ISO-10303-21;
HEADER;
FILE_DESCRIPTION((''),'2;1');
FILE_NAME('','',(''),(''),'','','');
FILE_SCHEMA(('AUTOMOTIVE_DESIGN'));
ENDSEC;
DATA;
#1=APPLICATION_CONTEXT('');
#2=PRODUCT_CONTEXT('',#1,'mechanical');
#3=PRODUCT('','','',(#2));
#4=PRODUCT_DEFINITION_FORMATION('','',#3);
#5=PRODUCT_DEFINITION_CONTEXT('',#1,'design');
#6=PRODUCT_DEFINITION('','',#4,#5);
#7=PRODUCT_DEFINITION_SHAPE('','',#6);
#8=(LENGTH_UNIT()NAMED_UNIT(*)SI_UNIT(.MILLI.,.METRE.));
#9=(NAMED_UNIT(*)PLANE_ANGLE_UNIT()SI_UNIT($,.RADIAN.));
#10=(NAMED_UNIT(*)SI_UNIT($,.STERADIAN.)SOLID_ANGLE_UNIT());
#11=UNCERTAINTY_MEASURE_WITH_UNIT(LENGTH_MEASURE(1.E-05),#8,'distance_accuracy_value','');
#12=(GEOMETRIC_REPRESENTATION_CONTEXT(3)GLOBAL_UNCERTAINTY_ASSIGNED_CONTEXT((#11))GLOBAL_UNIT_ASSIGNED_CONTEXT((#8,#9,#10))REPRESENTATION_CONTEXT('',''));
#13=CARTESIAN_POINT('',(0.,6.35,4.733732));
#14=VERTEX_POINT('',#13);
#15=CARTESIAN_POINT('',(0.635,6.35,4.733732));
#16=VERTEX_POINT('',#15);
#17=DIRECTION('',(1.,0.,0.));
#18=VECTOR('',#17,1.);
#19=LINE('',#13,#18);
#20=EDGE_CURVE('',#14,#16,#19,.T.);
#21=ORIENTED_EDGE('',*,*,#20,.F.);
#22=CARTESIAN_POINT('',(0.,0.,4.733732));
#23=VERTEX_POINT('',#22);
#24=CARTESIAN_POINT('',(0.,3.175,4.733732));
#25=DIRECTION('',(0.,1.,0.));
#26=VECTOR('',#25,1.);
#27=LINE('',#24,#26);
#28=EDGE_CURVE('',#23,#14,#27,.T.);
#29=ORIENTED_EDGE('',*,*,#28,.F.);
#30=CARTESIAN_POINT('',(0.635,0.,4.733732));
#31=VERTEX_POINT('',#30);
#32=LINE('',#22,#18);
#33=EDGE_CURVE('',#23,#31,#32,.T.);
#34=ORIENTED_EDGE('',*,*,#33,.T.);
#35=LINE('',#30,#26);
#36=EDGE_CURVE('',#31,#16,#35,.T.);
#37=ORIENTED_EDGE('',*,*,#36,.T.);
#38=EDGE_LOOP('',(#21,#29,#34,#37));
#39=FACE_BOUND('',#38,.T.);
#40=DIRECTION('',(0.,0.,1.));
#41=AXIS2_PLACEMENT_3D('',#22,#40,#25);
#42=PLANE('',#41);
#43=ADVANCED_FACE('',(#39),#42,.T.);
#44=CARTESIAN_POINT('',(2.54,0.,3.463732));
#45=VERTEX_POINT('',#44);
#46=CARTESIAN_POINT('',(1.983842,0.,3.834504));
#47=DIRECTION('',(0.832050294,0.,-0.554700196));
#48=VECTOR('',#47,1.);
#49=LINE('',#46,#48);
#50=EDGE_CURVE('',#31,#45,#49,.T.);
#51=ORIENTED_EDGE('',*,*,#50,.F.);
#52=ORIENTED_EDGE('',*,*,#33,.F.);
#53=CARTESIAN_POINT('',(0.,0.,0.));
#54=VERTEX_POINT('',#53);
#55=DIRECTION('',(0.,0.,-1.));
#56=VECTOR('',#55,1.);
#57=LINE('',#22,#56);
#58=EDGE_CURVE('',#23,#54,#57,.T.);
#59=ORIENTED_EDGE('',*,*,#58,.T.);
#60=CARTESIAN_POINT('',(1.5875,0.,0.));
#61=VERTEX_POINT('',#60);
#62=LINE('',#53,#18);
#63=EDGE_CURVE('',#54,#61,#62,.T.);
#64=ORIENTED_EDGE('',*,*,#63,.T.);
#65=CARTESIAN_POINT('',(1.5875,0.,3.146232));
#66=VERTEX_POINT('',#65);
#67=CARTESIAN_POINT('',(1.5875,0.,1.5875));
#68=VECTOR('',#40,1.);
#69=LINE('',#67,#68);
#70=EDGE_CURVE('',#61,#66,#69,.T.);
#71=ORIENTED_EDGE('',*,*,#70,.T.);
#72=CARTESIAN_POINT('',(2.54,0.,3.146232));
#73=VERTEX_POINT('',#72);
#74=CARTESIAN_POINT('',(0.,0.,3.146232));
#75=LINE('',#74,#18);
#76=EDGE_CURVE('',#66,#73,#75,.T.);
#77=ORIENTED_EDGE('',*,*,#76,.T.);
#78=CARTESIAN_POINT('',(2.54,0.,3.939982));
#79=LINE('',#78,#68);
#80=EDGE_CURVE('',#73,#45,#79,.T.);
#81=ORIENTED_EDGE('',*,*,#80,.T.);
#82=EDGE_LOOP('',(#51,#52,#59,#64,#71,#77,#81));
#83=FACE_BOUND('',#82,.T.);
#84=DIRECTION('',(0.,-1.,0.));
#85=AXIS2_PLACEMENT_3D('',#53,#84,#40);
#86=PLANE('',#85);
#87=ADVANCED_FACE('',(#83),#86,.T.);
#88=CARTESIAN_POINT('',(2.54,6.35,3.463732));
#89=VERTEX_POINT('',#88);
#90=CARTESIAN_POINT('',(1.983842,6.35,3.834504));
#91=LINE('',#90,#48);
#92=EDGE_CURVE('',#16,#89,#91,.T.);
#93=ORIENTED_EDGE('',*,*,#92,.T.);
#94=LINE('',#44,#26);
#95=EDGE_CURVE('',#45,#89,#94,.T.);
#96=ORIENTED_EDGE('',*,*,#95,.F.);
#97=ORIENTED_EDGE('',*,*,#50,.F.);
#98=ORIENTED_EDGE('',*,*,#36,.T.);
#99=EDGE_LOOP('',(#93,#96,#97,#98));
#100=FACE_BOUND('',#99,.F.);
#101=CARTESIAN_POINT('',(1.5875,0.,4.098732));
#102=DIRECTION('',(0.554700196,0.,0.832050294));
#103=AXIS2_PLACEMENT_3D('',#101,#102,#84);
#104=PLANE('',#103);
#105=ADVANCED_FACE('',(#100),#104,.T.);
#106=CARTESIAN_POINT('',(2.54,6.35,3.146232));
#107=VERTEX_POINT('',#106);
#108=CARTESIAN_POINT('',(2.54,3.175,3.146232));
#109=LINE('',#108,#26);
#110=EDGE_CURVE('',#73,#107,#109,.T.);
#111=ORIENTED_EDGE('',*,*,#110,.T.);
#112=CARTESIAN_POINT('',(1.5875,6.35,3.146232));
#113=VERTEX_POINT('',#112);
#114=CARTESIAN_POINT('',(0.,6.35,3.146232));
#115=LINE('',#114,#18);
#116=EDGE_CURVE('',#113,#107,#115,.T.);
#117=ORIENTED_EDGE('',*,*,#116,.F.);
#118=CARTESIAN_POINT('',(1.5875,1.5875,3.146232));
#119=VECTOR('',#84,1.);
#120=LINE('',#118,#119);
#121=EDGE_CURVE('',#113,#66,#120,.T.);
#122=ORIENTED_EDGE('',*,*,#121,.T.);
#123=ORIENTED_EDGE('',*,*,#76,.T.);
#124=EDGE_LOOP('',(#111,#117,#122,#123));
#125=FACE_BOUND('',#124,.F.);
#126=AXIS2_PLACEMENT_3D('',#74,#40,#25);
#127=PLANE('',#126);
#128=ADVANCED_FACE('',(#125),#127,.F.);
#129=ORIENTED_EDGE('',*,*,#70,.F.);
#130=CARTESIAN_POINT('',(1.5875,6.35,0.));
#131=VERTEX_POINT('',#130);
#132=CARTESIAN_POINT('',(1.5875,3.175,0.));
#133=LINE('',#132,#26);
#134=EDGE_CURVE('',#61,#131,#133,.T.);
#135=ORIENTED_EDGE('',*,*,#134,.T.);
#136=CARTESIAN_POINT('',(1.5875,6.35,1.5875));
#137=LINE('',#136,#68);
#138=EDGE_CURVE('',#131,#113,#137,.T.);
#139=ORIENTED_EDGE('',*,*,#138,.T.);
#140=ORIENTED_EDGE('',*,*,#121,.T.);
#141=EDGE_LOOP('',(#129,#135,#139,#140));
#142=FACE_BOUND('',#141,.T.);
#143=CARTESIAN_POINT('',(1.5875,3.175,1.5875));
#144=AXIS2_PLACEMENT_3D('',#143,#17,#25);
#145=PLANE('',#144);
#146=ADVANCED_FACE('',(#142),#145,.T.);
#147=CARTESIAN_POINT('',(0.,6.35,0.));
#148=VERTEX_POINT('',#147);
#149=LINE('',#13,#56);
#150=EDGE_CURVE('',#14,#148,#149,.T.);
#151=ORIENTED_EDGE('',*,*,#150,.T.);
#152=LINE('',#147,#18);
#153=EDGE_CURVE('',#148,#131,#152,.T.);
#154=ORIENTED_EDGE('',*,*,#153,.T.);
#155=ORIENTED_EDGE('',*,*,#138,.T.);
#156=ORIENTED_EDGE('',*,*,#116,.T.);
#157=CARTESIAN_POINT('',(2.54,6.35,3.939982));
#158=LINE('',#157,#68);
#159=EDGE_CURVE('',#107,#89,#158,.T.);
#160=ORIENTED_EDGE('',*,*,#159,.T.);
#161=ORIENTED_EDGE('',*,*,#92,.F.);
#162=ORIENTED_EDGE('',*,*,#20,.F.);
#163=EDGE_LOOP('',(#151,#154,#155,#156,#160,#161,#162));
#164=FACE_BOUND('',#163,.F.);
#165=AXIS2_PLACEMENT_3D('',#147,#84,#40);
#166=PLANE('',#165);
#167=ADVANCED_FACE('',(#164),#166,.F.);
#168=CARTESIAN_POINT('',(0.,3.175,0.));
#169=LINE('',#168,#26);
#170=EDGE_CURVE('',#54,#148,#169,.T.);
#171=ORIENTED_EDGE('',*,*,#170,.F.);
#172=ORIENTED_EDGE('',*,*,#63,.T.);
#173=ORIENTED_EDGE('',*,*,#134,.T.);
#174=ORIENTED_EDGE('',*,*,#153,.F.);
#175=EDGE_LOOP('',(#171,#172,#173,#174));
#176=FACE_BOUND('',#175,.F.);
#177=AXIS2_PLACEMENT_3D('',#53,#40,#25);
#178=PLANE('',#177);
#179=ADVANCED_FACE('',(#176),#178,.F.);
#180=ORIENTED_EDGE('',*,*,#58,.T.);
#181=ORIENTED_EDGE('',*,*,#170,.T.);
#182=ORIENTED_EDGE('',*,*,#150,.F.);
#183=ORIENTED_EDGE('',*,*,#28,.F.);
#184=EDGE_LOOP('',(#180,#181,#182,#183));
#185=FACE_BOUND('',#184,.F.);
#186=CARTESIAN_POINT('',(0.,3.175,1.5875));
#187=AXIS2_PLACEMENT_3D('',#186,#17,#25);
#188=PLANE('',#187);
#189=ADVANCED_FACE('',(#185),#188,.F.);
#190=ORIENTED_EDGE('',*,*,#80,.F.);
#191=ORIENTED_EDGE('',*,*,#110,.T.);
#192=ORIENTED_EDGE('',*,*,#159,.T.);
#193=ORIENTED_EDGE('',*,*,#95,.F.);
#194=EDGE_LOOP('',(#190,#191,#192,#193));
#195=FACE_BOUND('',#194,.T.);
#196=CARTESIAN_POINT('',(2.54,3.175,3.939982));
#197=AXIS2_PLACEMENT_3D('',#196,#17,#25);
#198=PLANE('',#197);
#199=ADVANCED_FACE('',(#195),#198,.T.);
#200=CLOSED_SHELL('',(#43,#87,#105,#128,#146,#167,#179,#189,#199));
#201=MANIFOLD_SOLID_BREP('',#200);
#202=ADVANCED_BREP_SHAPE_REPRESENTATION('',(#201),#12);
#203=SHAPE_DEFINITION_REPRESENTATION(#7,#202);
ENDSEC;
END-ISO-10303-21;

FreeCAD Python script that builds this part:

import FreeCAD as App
import Part
import Sketcher

V = App.Vector
Q = App.Units.Quantity


def edges_at(feature, points):
    """Names of the edges that pass closest to the given points."""
    edges = feature.Shape.Edges
    near = lambda p: min(range(len(edges)), key=lambda i: edges[i].distToShape(Part.Vertex(*p))[0])
    return sorted({f"Edge{near(p) + 1}" for p in points})

doc = App.newDocument("Part")
body = doc.addObject("PartDesign::Body", "Body")

# Sketch on YZ plane
sketch1 = body.newObject("Sketcher::SketchObject", "Sketch")
sketch1.AttachmentSupport = (doc.getObject("YZ_Plane"), [""])
sketch1.MapMode = "FlatFace"
sketch1.addGeometry([
    Part.LineSegment(V(0, 3.2, 0), V(0, 0, 0)),
    Part.LineSegment(V(0, 0, 0), V(6.3, 0, 0)),
    Part.LineSegment(V(6.3, 0, 0), V(6.3, 3.2, 0)),
    Part.LineSegment(V(6.3, 3.2, 0), V(0, 3.2, 0)),
], False)
sketch1.addConstraint([
    Sketcher.Constraint("Coincident", 0, 2, 1, 1),
    Sketcher.Constraint("Coincident", 1, 2, 2, 1),
    Sketcher.Constraint("Coincident", 2, 2, 3, 1),
    Sketcher.Constraint("Coincident", 3, 2, 0, 1),
    Sketcher.Constraint("Vertical", 0),
    Sketcher.Constraint("Horizontal", 1),
    Sketcher.Constraint("Vertical", 2),
    Sketcher.Constraint("Horizontal", 3),
    Sketcher.Constraint("Coincident", 0, 2, -1, 1),
    Sketcher.Constraint("DistanceX", 1, 1, 1, 2, Q("0.25 in")),
    Sketcher.Constraint("DistanceY", 0, 2, 0, 1, Q("0.125 in")),
])
pad1 = body.newObject("PartDesign::Pad", "Pad")
pad1.Profile = sketch1
pad1.Length = Q("0.0625 in")

# Sketch on YZ plane
sketch2 = body.newObject("Sketcher::SketchObject", "Sketch001")
sketch2.AttachmentSupport = (doc.getObject("YZ_Plane"), [""])
sketch2.MapMode = "FlatFace"
sketch2.addGeometry([
    Part.LineSegment(V(0, 4.7, 0), V(0, 3.1, 0)),
    Part.LineSegment(V(0, 3.1, 0), V(6.3, 3.1, 0)),
    Part.LineSegment(V(6.3, 3.1, 0), V(6.3, 4.7, 0)),
    Part.LineSegment(V(6.3, 4.7, 0), V(0, 4.7, 0)),
], False)
sketch2.addConstraint([
    Sketcher.Constraint("Coincident", 0, 2, 1, 1),
    Sketcher.Constraint("Coincident", 1, 2, 2, 1),
    Sketcher.Constraint("Coincident", 2, 2, 3, 1),
    Sketcher.Constraint("Coincident", 3, 2, 0, 1),
    Sketcher.Constraint("Vertical", 0),
    Sketcher.Constraint("Horizontal", 1),
    Sketcher.Constraint("Vertical", 2),
    Sketcher.Constraint("Horizontal", 3),
    Sketcher.Constraint("PointOnObject", 0, 2, -2),
    Sketcher.Constraint("DistanceX", 1, 1, 1, 2, Q("0.25 in")),
    Sketcher.Constraint("DistanceY", 0, 2, 0, 1, Q("0.0625 in")),
    Sketcher.Constraint("DistanceY", -1, 1, 0, 2, Q("3.146232 mm")),
])
pad2 = body.newObject("PartDesign::Pad", "Pad001")
pad2.Profile = sketch2
pad2.Length = Q("0.1 in")
doc.recompute()

chamfer = body.newObject("PartDesign::Chamfer", "Chamfer")
chamfer.Base = (pad2, edges_at(pad2, [(2.54, 3.175, 4.734)]))
chamfer.ChamferType = "Two distances"
chamfer.Size = Q("0.075 in")
chamfer.Size2 = Q("0.05 in")
chamfer.FlipDirection = True

doc.recompute()
